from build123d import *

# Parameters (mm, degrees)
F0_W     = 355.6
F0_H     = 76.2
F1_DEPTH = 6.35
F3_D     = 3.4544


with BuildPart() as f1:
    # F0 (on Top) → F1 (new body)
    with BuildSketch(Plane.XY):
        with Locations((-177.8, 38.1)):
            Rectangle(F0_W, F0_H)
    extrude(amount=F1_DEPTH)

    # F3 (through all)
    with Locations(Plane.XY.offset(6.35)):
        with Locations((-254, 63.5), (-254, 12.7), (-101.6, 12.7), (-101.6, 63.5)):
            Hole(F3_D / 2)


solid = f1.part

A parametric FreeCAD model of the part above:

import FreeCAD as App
import Part
import Sketcher
from FreeCAD import Vector
Q = App.Units.Quantity

doc = App.newDocument("Part")
params = doc.addObject("Spreadsheet::Sheet", "Params")
for row, (alias, value) in enumerate([
    ("sketch1_width", "14 in"),
    ("sketch1_height", "3 in"),
    ("pad1_length", "0.25 in"),
    ("sketch2_diameter", "0.136 in"),
    ("hole_diameter", "0.136 in"),
], start=1):
    params.set(f"A{row}", alias)
    params.set(f"B{row}", "=" + value)
    params.setAlias(f"B{row}", alias)

body = doc.addObject("PartDesign::Body", "Body")

# Sketch on XY plane
sketch1 = body.newObject("Sketcher::SketchObject", "Sketch")
sketch1.AttachmentSupport = (doc.getObject("XY_Plane"), [""])
sketch1.MapMode = "FlatFace"
sketch1.addGeometry([
    Part.LineSegment(Vector(-356, 76, 0), Vector(-356, 0, 0)),
    Part.LineSegment(Vector(-356, 0, 0), Vector(0, 0, 0)),
    Part.LineSegment(Vector(0, 0, 0), Vector(0, 76, 0)),
    Part.LineSegment(Vector(0, 76, 0), Vector(-356, 76, 0)),
], False)
sketch1.addConstraint([
    Sketcher.Constraint("Coincident", 0, 2, 1, 1),
    Sketcher.Constraint("Coincident", 1, 2, 2, 1),
    Sketcher.Constraint("Coincident", 2, 2, 3, 1),
    Sketcher.Constraint("Coincident", 3, 2, 0, 1),
    Sketcher.Constraint("Vertical", 0),
    Sketcher.Constraint("Horizontal", 1),
    Sketcher.Constraint("Vertical", 2),
    Sketcher.Constraint("Horizontal", 3),
    Sketcher.Constraint("Coincident", 1, 2, -1, 1),
    Sketcher.Constraint("DistanceX", 1, 1, 1, 2, Q("14 in")),
    Sketcher.Constraint("DistanceY", 0, 2, 0, 1, Q("3 in")),
])
sketch1.setExpression("Constraints[9]", "Params.sketch1_width")
sketch1.setExpression("Constraints[10]", "Params.sketch1_height")
pad1 = body.newObject("PartDesign::Pad", "Pad")
pad1.Profile = sketch1
pad1.setExpression("Length", "Params.pad1_length")

# Sketch on XY plane
sketch2 = body.newObject("Sketcher::SketchObject", "Sketch001")
sketch2.AttachmentSupport = (doc.getObject("XY_Plane"), [""])
sketch2.MapMode = "FlatFace"
sketch2.AttachmentOffset = App.Placement(Vector(0, 0, 0.25 * 25.4), App.Rotation())
sketch2.addGeometry([
    Part.Circle(Vector(-254, 63.5, 0), Vector(0, 0, 1), 1.7),
    Part.Circle(Vector(-254, 12.7, 0), Vector(0, 0, 1), 1.7),
    Part.Circle(Vector(-101.6, 12.7, 0), Vector(0, 0, 1), 1.7),
    Part.Circle(Vector(-101.6, 63.5, 0), Vector(0, 0, 1), 1.7),
], False)
sketch2.addConstraint([
    Sketcher.Constraint("Equal", 0, 1),
    Sketcher.Constraint("Equal", 1, 2),
    Sketcher.Constraint("Equal", 2, 3),
    Sketcher.Constraint("Horizontal", 1, 3, 2, 3),
    Sketcher.Constraint("Horizontal", 0, 3, 3, 3),
    Sketcher.Constraint("Vertical", 0, 3, 1, 3),
    Sketcher.Constraint("Vertical", 2, 3, 3, 3),
    Sketcher.Constraint("Diameter", 0, Q("0.136 in")),
    Sketcher.Constraint("DistanceX", 0, 3, -1, 1, Q("10 in")),
    Sketcher.Constraint("DistanceX", 2, 3, -1, 1, Q("4 in")),
    Sketcher.Constraint("DistanceY", 1, 3, 0, 3, Q("2 in")),
    Sketcher.Constraint("DistanceY", -1, 1, 0, 3, Q("2.5 in")),
])
sketch2.setExpression("Constraints[7]", "Params.sketch2_diameter")
doc.recompute()
hole = body.newObject("PartDesign::Hole", "Hole")
hole.Profile = sketch2
hole.ThreadType = "None"
hole.setExpression("Diameter", "Params.hole_diameter")
hole.DepthType = "ThroughAll"

doc.recompute()
